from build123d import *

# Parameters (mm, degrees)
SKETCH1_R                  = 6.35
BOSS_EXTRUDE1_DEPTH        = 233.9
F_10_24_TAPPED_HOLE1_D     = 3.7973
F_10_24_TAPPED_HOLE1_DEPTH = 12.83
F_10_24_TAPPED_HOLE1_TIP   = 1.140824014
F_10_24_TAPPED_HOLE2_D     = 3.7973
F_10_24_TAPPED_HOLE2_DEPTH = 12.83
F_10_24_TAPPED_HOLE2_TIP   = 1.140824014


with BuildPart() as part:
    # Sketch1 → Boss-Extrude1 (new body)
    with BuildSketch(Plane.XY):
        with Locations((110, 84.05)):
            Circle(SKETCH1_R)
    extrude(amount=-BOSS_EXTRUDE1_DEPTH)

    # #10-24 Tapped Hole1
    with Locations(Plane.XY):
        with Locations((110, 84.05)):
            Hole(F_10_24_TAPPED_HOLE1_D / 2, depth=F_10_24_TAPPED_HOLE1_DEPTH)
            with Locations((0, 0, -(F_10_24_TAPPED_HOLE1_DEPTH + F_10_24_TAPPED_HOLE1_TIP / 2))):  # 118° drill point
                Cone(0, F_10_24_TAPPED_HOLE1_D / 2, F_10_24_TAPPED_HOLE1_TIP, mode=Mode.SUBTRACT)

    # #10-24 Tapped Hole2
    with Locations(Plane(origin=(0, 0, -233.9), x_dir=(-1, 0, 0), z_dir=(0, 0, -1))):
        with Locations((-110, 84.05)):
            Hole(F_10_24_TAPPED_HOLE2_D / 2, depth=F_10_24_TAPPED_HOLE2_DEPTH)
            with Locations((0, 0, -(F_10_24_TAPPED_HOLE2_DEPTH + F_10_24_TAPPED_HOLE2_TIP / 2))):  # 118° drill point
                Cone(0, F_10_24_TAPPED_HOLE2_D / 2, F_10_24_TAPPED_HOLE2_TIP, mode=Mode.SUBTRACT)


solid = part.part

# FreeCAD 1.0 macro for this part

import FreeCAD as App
import Part
import Sketcher
from FreeCAD import Vector
Q = App.Units.Quantity

doc = App.newDocument("Part")
body = doc.addObject("PartDesign::Body", "Body")

# Sketch on XY plane
sketch1 = body.newObject("Sketcher::SketchObject", "Sketch")
sketch1.AttachmentSupport = (doc.getObject("XY_Plane"), [""])
sketch1.MapMode = "FlatFace"
sketch1.addGeometry(Part.Circle(Vector(110, 84.05, 0), Vector(0, 0, 1), 6.35), False)
sketch1.addConstraint([
    Sketcher.Constraint("Diameter", 0, Q("12.7 mm")),
    Sketcher.Constraint("DistanceX", -1, 1, 0, 3, Q("110 mm")),
    Sketcher.Constraint("DistanceY", -1, 1, 0, 3, Q("84.05 mm")),
])
pad1 = body.newObject("PartDesign::Pad", "Pad")
pad1.Profile = sketch1
pad1.Length = 233.9
pad1.Reversed = True

# Sketch on XY plane
sketch2 = body.newObject("Sketcher::SketchObject", "Sketch001")
sketch2.AttachmentSupport = (doc.getObject("XY_Plane"), [""])
sketch2.MapMode = "FlatFace"
sketch2.addGeometry(Part.Circle(Vector(110, 84.05, 0), Vector(0, 0, 1), 1.89865), False)
sketch2.addConstraint([
    Sketcher.Constraint("DistanceX", -1, 1, 0, 3, Q("110 mm")),
    Sketcher.Constraint("Diameter", 0, Q("3.7973 mm")),
    Sketcher.Constraint("DistanceY", -1, 1, 0, 3, Q("84.05 mm")),
])
doc.recompute()
hole = body.newObject("PartDesign::Hole", "Hole")
hole.Profile = sketch2
hole.ThreadType = "None"
hole.Diameter = 3.7973
hole.DepthType = "Dimension"
hole.Depth = 12.83
hole.DrillPoint = "Angled"
hole.DrillPointAngle = 118

# Sketch on XY plane
sketch3 = body.newObject("Sketcher::SketchObject", "Sketch002")
sketch3.AttachmentSupport = (doc.getObject("XY_Plane"), [""])
sketch3.MapMode = "FlatFace"
sketch3.AttachmentOffset = App.Placement(Vector(0, 0, -233.9), App.Rotation())
sketch3.addGeometry(Part.Circle(Vector(110, 84.05, 0), Vector(0, 0, 1), 1.89865), False)
sketch3.addConstraint([
    Sketcher.Constraint("DistanceX", -1, 1, 0, 3, Q("110 mm")),
    Sketcher.Constraint("Diameter", 0, Q("3.7973 mm")),
    Sketcher.Constraint("DistanceY", -1, 1, 0, 3, Q("84.05 mm")),
])
doc.recompute()
hole2 = body.newObject("PartDesign::Hole", "Hole001")
hole2.Profile = sketch3
hole2.ThreadType = "None"
hole2.Diameter = 3.7973
hole2.DepthType = "Dimension"
hole2.Depth = 12.83
hole2.DrillPoint = "Angled"
hole2.DrillPointAngle = 118
hole2.Reversed = True

doc.recompute()
